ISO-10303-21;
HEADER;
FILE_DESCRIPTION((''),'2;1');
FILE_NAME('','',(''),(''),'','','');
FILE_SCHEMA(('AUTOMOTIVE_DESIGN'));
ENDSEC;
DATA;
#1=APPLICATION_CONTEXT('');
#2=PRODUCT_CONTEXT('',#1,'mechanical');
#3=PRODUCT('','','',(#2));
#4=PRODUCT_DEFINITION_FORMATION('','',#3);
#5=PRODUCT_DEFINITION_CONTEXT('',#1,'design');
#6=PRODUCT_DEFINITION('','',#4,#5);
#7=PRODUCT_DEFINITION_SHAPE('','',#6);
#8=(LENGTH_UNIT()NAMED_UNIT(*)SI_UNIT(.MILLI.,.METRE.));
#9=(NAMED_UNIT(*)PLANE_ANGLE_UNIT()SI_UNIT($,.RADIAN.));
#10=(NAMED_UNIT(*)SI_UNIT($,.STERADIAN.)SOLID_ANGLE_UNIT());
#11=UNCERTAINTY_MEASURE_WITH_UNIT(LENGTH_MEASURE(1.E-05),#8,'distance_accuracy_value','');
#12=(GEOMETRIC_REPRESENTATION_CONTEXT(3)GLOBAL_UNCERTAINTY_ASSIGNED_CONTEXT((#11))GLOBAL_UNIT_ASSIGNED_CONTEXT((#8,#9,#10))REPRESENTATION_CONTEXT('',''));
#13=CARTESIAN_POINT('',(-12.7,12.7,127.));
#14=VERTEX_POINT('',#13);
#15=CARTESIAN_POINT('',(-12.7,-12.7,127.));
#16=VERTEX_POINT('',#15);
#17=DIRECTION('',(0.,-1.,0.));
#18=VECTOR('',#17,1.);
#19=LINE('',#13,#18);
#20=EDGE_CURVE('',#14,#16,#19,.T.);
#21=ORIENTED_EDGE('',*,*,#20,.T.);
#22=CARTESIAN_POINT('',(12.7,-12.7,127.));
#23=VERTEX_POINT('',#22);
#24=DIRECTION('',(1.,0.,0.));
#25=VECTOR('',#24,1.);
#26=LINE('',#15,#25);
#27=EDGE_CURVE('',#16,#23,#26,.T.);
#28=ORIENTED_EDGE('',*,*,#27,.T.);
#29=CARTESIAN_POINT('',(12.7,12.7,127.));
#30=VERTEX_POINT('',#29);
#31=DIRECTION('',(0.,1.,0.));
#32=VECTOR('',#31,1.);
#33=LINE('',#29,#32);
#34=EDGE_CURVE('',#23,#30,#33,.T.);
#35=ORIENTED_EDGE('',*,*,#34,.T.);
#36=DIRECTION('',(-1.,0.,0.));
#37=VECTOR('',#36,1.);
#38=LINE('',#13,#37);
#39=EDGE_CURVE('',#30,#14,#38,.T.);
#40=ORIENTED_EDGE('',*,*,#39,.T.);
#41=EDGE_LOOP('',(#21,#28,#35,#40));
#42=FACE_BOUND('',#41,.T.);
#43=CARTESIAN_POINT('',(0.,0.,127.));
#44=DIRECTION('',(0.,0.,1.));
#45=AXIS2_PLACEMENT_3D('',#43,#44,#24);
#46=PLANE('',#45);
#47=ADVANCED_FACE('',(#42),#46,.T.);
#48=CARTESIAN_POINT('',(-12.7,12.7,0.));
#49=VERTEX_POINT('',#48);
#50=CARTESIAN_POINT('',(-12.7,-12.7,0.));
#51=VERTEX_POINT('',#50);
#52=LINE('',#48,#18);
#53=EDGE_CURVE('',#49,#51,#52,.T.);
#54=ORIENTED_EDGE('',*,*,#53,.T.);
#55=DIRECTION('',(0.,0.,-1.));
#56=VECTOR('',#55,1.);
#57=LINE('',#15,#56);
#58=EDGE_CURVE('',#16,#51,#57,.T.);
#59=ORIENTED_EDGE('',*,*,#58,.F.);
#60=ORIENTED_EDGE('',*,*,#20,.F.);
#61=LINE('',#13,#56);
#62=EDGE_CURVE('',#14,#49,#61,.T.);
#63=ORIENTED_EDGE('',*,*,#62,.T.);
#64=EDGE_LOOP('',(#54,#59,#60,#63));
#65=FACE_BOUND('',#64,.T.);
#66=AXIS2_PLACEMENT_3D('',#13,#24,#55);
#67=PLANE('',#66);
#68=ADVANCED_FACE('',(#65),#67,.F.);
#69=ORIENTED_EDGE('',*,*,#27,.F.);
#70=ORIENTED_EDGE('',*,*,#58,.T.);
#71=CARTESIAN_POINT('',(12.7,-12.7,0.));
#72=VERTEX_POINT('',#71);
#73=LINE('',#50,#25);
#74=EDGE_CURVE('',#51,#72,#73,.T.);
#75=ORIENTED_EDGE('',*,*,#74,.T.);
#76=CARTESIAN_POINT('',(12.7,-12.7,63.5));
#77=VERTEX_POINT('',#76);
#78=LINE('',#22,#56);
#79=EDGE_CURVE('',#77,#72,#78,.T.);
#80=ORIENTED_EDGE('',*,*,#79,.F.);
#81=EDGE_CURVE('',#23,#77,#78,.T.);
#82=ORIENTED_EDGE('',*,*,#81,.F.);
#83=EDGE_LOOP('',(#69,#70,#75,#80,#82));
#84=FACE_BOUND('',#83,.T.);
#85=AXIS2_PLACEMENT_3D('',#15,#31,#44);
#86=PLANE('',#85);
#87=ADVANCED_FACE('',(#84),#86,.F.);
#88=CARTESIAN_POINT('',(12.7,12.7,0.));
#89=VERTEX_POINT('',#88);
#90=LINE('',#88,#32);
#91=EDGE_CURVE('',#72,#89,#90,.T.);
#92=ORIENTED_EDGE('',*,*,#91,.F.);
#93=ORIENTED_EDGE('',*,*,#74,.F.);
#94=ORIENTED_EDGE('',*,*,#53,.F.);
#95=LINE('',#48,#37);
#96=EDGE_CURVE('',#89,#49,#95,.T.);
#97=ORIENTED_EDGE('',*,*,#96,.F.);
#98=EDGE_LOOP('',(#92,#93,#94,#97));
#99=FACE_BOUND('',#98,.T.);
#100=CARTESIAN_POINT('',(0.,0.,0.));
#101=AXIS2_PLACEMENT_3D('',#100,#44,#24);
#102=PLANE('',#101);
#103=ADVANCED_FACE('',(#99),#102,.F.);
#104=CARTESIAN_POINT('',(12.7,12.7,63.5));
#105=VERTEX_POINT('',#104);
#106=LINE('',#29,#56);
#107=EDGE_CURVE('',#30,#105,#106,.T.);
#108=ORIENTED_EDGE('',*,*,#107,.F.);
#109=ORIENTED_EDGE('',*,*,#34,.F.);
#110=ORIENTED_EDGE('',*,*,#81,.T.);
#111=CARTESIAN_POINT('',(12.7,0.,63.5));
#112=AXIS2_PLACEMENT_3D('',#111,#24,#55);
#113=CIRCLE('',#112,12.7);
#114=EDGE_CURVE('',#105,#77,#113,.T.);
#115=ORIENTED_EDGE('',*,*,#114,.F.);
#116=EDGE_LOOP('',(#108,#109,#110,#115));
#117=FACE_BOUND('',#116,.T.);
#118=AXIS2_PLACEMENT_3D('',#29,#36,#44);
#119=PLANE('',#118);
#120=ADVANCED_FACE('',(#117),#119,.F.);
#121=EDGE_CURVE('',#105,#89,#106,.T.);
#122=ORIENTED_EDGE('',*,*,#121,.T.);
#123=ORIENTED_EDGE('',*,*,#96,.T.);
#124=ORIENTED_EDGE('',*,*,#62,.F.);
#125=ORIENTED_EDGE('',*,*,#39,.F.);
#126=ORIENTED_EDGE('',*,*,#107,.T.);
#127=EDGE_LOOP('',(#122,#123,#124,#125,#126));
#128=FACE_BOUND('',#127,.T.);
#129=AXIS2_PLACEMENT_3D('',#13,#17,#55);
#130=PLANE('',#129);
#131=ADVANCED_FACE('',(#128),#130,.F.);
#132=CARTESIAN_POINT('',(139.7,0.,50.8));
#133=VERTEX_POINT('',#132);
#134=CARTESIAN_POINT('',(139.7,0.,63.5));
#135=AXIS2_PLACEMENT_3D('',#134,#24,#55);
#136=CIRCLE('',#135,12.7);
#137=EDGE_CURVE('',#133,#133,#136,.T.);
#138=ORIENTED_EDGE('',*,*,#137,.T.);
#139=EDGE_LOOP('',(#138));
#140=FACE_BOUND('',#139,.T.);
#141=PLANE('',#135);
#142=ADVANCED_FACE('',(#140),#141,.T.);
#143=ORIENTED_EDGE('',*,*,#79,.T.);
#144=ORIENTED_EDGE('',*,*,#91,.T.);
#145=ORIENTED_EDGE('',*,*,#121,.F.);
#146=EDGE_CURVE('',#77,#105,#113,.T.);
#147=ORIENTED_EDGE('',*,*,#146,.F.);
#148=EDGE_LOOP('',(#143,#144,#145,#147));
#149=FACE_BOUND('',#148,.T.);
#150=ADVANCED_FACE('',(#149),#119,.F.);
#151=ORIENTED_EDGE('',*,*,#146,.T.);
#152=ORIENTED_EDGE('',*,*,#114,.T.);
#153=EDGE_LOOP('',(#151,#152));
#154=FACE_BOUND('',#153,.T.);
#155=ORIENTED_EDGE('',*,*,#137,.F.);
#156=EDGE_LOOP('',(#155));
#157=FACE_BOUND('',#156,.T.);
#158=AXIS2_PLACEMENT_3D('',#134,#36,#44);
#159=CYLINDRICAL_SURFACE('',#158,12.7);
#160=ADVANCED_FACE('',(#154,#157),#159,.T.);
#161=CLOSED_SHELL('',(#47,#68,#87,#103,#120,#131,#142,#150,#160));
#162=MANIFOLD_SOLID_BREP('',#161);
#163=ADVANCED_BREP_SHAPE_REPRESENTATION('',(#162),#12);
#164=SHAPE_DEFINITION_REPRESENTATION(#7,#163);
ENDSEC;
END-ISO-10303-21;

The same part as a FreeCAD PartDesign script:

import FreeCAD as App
import Part
import Sketcher
Q = App.Units.Quantity

doc = App.newDocument("Part")
body = doc.addObject("PartDesign::Body", "Body")

# Sketch on XY plane
sketch1 = doc.addObject("Sketcher::SketchObject", "Sketch")
body.addObject(sketch1)
sketch1.AttachmentSupport = (doc.XY_Plane, [""])
sketch1.MapMode = "FlatFace"
sketch1.addGeometry(Part.LineSegment(App.Vector(-13, 13, 0), App.Vector(-13, -13, 0)), False)
sketch1.addGeometry(Part.LineSegment(App.Vector(-13, -13, 0), App.Vector(13, -13, 0)), False)
sketch1.addGeometry(Part.LineSegment(App.Vector(13, -13, 0), App.Vector(13, 13, 0)), False)
sketch1.addGeometry(Part.LineSegment(App.Vector(13, 13, 0), App.Vector(-13, 13, 0)), False)
sketch1.addConstraint(Sketcher.Constraint("Coincident", 0, 2, 1, 1))
sketch1.addConstraint(Sketcher.Constraint("Coincident", 1, 2, 2, 1))
sketch1.addConstraint(Sketcher.Constraint("Coincident", 2, 2, 3, 1))
sketch1.addConstraint(Sketcher.Constraint("Coincident", 3, 2, 0, 1))
sketch1.addConstraint(Sketcher.Constraint("Vertical", 0))
sketch1.addConstraint(Sketcher.Constraint("Horizontal", 1))
sketch1.addConstraint(Sketcher.Constraint("Vertical", 2))
sketch1.addConstraint(Sketcher.Constraint("Horizontal", 3))
sketch1.addConstraint(Sketcher.Constraint("Symmetric", 0, 2, 2, 2, -1, 1))
sketch1.addConstraint(Sketcher.Constraint("Equal", 3, 0))
sketch1.addConstraint(Sketcher.Constraint("DistanceX", 1, 1, 1, 2, Q("1 in")))
pad1 = doc.addObject("PartDesign::Pad", "Pad")
body.addObject(pad1)
pad1.Profile = sketch1
pad1.Length = Q("5 in")

# Sketch on YZ plane
sketch2 = doc.addObject("Sketcher::SketchObject", "Sketch001")
body.addObject(sketch2)
sketch2.AttachmentSupport = (doc.YZ_Plane, [""])
sketch2.MapMode = "FlatFace"
sketch2.AttachmentOffset = App.Placement(App.Vector(0, 0, 0.5 * 25.4), App.Rotation())
sketch2.addGeometry(Part.Circle(App.Vector(0, 64, 0), App.Vector(0, 0, 1), 13), False)
sketch2.addConstraint(Sketcher.Constraint("PointOnObject", 0, 3, -2))
sketch2.addConstraint(Sketcher.Constraint("Diameter", 0, Q("1 in")))
sketch2.addConstraint(Sketcher.Constraint("DistanceY", -1, 1, 0, 3, Q("2.5 in")))
pad2 = doc.addObject("PartDesign::Pad", "Pad001")
body.addObject(pad2)
pad2.Profile = sketch2
pad2.Length = Q("5 in")

doc.recompute()
